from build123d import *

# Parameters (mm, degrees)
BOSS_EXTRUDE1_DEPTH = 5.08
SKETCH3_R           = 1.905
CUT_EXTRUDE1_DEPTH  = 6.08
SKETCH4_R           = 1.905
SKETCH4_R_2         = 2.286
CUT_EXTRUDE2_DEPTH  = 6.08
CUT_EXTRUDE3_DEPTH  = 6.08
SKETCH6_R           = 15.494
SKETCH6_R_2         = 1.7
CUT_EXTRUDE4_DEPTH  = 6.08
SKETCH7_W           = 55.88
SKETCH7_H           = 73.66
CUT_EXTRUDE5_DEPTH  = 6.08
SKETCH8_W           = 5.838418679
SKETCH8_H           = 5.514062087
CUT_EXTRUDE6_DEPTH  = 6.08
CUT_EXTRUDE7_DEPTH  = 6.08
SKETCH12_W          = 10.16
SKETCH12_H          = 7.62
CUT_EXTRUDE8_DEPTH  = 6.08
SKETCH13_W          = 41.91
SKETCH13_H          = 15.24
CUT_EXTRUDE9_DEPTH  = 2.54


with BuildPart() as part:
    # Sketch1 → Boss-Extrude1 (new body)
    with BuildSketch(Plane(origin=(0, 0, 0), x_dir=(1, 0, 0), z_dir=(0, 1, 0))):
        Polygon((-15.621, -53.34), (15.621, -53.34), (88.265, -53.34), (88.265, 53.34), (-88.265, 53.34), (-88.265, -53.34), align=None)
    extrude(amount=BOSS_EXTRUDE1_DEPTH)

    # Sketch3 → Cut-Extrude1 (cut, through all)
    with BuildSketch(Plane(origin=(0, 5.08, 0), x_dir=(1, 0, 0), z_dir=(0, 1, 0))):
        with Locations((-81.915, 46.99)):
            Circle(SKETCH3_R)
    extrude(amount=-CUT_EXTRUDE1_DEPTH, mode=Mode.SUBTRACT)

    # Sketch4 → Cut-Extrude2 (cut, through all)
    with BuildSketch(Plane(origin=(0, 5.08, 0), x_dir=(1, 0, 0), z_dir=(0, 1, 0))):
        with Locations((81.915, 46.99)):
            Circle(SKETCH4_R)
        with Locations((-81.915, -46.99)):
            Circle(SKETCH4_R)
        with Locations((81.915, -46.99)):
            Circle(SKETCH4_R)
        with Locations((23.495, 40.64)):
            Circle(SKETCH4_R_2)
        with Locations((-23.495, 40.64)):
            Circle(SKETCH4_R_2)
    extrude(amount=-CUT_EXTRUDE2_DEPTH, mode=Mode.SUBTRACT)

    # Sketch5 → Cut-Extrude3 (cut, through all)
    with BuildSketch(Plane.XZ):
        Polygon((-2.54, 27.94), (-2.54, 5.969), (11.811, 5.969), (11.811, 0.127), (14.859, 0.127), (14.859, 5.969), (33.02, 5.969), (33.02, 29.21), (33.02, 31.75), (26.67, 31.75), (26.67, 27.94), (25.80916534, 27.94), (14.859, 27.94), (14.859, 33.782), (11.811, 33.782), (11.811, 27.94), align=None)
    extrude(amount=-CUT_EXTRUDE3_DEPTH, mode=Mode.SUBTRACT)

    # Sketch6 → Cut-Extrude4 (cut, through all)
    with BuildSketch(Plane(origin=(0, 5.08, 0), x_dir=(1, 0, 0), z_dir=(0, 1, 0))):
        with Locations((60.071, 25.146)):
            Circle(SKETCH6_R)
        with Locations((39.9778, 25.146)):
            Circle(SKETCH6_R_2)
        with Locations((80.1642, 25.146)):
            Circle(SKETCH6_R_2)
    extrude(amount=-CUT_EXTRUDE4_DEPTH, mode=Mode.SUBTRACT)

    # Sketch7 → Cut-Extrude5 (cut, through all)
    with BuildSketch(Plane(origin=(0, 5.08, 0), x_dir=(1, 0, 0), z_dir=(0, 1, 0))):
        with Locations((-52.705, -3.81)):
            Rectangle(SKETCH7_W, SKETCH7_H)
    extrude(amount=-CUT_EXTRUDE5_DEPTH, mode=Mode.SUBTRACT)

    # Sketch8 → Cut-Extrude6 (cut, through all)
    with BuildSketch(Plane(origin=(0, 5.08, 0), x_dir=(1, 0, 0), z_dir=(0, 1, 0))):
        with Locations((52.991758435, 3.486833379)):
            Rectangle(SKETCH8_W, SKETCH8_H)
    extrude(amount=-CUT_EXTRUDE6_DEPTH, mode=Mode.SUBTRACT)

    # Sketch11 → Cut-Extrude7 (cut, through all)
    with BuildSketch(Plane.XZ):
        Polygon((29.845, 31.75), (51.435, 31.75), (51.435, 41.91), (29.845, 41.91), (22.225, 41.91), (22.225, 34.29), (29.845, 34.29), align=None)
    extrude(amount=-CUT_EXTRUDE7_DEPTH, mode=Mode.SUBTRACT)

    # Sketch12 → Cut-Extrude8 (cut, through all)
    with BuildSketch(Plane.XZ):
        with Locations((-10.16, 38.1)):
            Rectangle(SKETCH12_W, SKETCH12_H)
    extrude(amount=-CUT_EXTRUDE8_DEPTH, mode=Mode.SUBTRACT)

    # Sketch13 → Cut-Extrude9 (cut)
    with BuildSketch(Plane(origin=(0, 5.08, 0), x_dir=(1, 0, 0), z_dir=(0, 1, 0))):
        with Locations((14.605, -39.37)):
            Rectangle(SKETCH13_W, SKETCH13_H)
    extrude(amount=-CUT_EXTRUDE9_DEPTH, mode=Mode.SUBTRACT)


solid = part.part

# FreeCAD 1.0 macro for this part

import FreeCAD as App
import Part
import Sketcher
from FreeCAD import Vector
Q = App.Units.Quantity

doc = App.newDocument("Part")
params = doc.addObject("Spreadsheet::Sheet", "Params")
for row, (alias, value) in enumerate([
    ("sketch1_height", "4.2 in"),
    ("sketch1_width", "6.95 in"),
    ("pad1_length", "0.2 in"),
    ("sketch2_diameter", "0.15 in"),
    ("sketch3_diameter", "0.15 in"),
    ("sketch3_diameter2", "0.18 in"),
    ("sketch4_width", "0.12 in"),
    ("sketch4_width2", "0.25 in"),
    ("sketch4_height", "0.23 in"),
    ("sketch4_height2", "0.15 in"),
    ("sketch4_width3", "0.565 in"),
    ("sketch5_diameter", "1.22 in"),
    ("sketch6_width", "2.2 in"),
    ("sketch6_height", "2.9 in"),
    ("sketch8_width", "0.3 in"),
    ("sketch8_height", "0.4 in"),
    ("sketch8_width2", "0.85 in"),
    ("sketch9_width", "0.4 in"),
    ("sketch9_height", "0.3 in"),
    ("sketch10_height", "0.6 in"),
    ("sketch10_width", "1.65 in"),
    ("pocket9_length", "0.1 in"),
], start=1):
    params.set(f"A{row}", alias)
    params.set(f"B{row}", "=" + value)
    params.setAlias(f"B{row}", alias)

body = doc.addObject("PartDesign::Body", "Body")

sketch1 = doc.addObject("Sketcher::SketchObject", "Sketch")
body.addObject(sketch1)
sketch1.AttachmentSupport = (doc.XZ_Plane, [""])
sketch1.MapMode = "FlatFace"
sketch1.addGeometry([
    Part.LineSegment(Vector(88, 53, 0), Vector(88, -53, 0)),
    Part.LineSegment(Vector(88, -53, 0), Vector(-88, -53, 0)),
    Part.LineSegment(Vector(-88, -53, 0), Vector(-88, 53, 0)),
    Part.LineSegment(Vector(-88, 53, 0), Vector(88, 53, 0)),
], False)
sketch1.addConstraint([
    Sketcher.Constraint("Coincident", 0, 2, 1, 1),
    Sketcher.Constraint("Coincident", 1, 2, 2, 1),
    Sketcher.Constraint("Coincident", 2, 2, 3, 1),
    Sketcher.Constraint("Coincident", 3, 2, 0, 1),
    Sketcher.Constraint("Vertical", 0),
    Sketcher.Constraint("Horizontal", 1),
    Sketcher.Constraint("Vertical", 2),
    Sketcher.Constraint("Horizontal", 3),
    Sketcher.Constraint("Symmetric", 0, 2, 2, 2, -1, 1),
    Sketcher.Constraint("DistanceY", 0, 2, 0, 1, Q("4.2 in")),
    Sketcher.Constraint("DistanceX", 1, 2, 1, 1, Q("6.95 in")),
])
sketch1.setExpression("Constraints[9]", "Params.sketch1_height")
sketch1.setExpression("Constraints[10]", "Params.sketch1_width")
pad1 = doc.addObject("PartDesign::Pad", "Pad")
body.addObject(pad1)
pad1.Profile = sketch1
pad1.setExpression("Length", "Params.pad1_length")
pad1.Reversed = True

sketch2 = doc.addObject("Sketcher::SketchObject", "Sketch001")
body.addObject(sketch2)
sketch2.AttachmentSupport = (doc.XZ_Plane, [""])
sketch2.MapMode = "FlatFace"
sketch2.AttachmentOffset = App.Placement(Vector(0, 0, -0.2 * 25.4), App.Rotation())
sketch2.addGeometry(Part.Circle(Vector(-81.9, -47, 0), Vector(0, 0, 1), 1.9), False)
sketch2.addConstraint([
    Sketcher.Constraint("Diameter", 0, Q("0.15 in")),
    Sketcher.Constraint("DistanceY", 0, 3, -1, 1, Q("1.85 in")),
    Sketcher.Constraint("DistanceX", 0, 3, -1, 1, Q("3.225 in")),
])
sketch2.setExpression("Constraints[0]", "Params.sketch2_diameter")
pocket1 = doc.addObject("PartDesign::Pocket", "Pocket")
body.addObject(pocket1)
pocket1.Profile = sketch2
pocket1.Type = "ThroughAll"
pocket1.Reversed = True

sketch3 = doc.addObject("Sketcher::SketchObject", "Sketch002")
body.addObject(sketch3)
sketch3.AttachmentSupport = (doc.XZ_Plane, [""])
sketch3.MapMode = "FlatFace"
sketch3.AttachmentOffset = App.Placement(Vector(0, 0, -0.2 * 25.4), App.Rotation())
sketch3.addGeometry([
    Part.Circle(Vector(81.9, -47, 0), Vector(0, 0, 1), 1.9),
    Part.Circle(Vector(-81.9, 47, 0), Vector(0, 0, 1), 1.9),
    Part.Circle(Vector(81.9, 47, 0), Vector(0, 0, 1), 1.9),
    Part.Circle(Vector(23.5, -40.6, 0), Vector(0, 0, 1), 2.3),
    Part.Circle(Vector(-23.5, -40.6, 0), Vector(0, 0, 1), 2.3),
], False)
sketch3.addConstraint([
    Sketcher.Constraint("Equal", 0, 1),
    Sketcher.Constraint("Equal", 1, 2),
    Sketcher.Constraint("Equal", 3, 4),
    Sketcher.Constraint("Symmetric", 0, 3, 1, 3, -1, 1),
    Sketcher.Constraint("Symmetric", 1, 3, 2, 3, -2),
    Sketcher.Constraint("Symmetric", 3, 3, 4, 3, -2),
    Sketcher.Constraint("Diameter", 0, Q("0.15 in")),
    Sketcher.Constraint("Diameter", 3, Q("0.18 in")),
    Sketcher.Constraint("DistanceY", 3, 3, -1, 1, Q("1.6 in")),
    Sketcher.Constraint("DistanceY", 0, 3, 1, 3, Q("3.7 in")),
    Sketcher.Constraint("DistanceX", 3, 3, 0, 3, Q("2.3 in")),
    Sketcher.Constraint("DistanceX", 1, 3, 0, 3, Q("6.45 in")),
])
sketch3.setExpression("Constraints[6]", "Params.sketch3_diameter")
sketch3.setExpression("Constraints[7]", "Params.sketch3_diameter2")
pocket2 = doc.addObject("PartDesign::Pocket", "Pocket001")
body.addObject(pocket2)
pocket2.Profile = sketch3
pocket2.Type = "ThroughAll"
pocket2.Reversed = True

sketch4 = doc.addObject("Sketcher::SketchObject", "Sketch003")
body.addObject(sketch4)
sketch4.AttachmentSupport = (doc.XZ_Plane, [""])
sketch4.MapMode = "FlatFace"
sketch4.addGeometry([
    Part.LineSegment(Vector(-2.5, 27.9, 0), Vector(-2.5, 6, 0)),
    Part.LineSegment(Vector(-2.5, 6, 0), Vector(11.8, 6, 0)),
    Part.LineSegment(Vector(11.8, 6, 0), Vector(11.8, 0.1, 0)),
    Part.LineSegment(Vector(11.8, 0.1, 0), Vector(14.9, 0.1, 0)),
    Part.LineSegment(Vector(14.9, 0.1, 0), Vector(14.9, 6, 0)),
    Part.LineSegment(Vector(14.9, 6, 0), Vector(33, 6, 0)),
    Part.LineSegment(Vector(33, 6, 0), Vector(33, 31.8, 0)),
    Part.LineSegment(Vector(33, 31.8, 0), Vector(26.7, 31.8, 0)),
    Part.LineSegment(Vector(26.7, 31.8, 0), Vector(26.7, 27.9, 0)),
    Part.LineSegment(Vector(26.7, 27.9, 0), Vector(14.9, 27.9, 0)),
    Part.LineSegment(Vector(14.9, 27.9, 0), Vector(14.9, 33.8, 0)),
    Part.LineSegment(Vector(14.9, 33.8, 0), Vector(11.8, 33.8, 0)),
    Part.LineSegment(Vector(11.8, 33.8, 0), Vector(11.8, 27.9, 0)),
    Part.LineSegment(Vector(11.8, 27.9, 0), Vector(-2.5, 27.9, 0)),
], False)
sketch4.addConstraint([
    Sketcher.Constraint("Coincident", 0, 2, 1, 1),
    Sketcher.Constraint("Coincident", 1, 2, 2, 1),
    Sketcher.Constraint("Coincident", 2, 2, 3, 1),
    Sketcher.Constraint("Coincident", 3, 2, 4, 1),
    Sketcher.Constraint("Coincident", 4, 2, 5, 1),
    Sketcher.Constraint("Coincident", 5, 2, 6, 1),
    Sketcher.Constraint("Coincident", 6, 2, 7, 1),
    Sketcher.Constraint("Coincident", 7, 2, 8, 1),
    Sketcher.Constraint("Coincident", 8, 2, 9, 1),
    Sketcher.Constraint("Coincident", 9, 2, 10, 1),
    Sketcher.Constraint("Coincident", 10, 2, 11, 1),
    Sketcher.Constraint("Coincident", 11, 2, 12, 1),
    Sketcher.Constraint("Coincident", 12, 2, 13, 1),
    Sketcher.Constraint("Coincident", 13, 2, 0, 1),
    Sketcher.Constraint("Vertical", 0),
    Sketcher.Constraint("Horizontal", 1),
    Sketcher.Constraint("Vertical", 2),
    Sketcher.Constraint("Horizontal", 3),
    Sketcher.Constraint("Vertical", 4),
    Sketcher.Constraint("Horizontal", 5),
    Sketcher.Constraint("Vertical", 6),
    Sketcher.Constraint("Horizontal", 7),
    Sketcher.Constraint("Vertical", 8),
    Sketcher.Constraint("Horizontal", 9),
    Sketcher.Constraint("Vertical", 10),
    Sketcher.Constraint("Horizontal", 11),
    Sketcher.Constraint("Vertical", 12),
    Sketcher.Constraint("Horizontal", 13),
    Sketcher.Constraint("Horizontal", 1, 2, 4, 2),
    Sketcher.Constraint("Horizontal", 9, 2, 12, 2),
    Sketcher.Constraint("Vertical", 4, 2, 9, 2),
    Sketcher.Constraint("Vertical", 2, 2, 11, 2),
    Sketcher.Constraint("Equal", 4, 10),
    Sketcher.Constraint("DistanceX", 3, 1, 3, 2, Q("0.12 in")),
    Sketcher.Constraint("DistanceX", 7, 2, 7, 1, Q("0.25 in")),
    Sketcher.Constraint("DistanceY", 2, 2, 2, 1, Q("0.23 in")),
    Sketcher.Constraint("DistanceY", 8, 2, 8, 1, Q("0.15 in")),
    Sketcher.Constraint("DistanceX", 0, 2, -1, 1, Q("0.1 in")),
    Sketcher.Constraint("DistanceX", -1, 1, 5, 2, Q("1.3 in")),
    Sketcher.Constraint("DistanceY", -1, 1, 8, 2, Q("1.1 in")),
    Sketcher.Constraint("DistanceX", 1, 1, 1, 2, Q("0.565 in")),
    Sketcher.Constraint("DistanceY", 0, 2, 0, 1, Q("0.865 in")),
])
sketch4.setExpression("Constraints[33]", "Params.sketch4_width")
sketch4.setExpression("Constraints[34]", "Params.sketch4_width2")
sketch4.setExpression("Constraints[35]", "Params.sketch4_height")
sketch4.setExpression("Constraints[36]", "Params.sketch4_height2")
sketch4.setExpression("Constraints[40]", "Params.sketch4_width3")
pocket3 = doc.addObject("PartDesign::Pocket", "Pocket002")
body.addObject(pocket3)
pocket3.Profile = sketch4
pocket3.Type = "ThroughAll"

sketch5 = doc.addObject("Sketcher::SketchObject", "Sketch004")
body.addObject(sketch5)
sketch5.AttachmentSupport = (doc.XZ_Plane, [""])
sketch5.MapMode = "FlatFace"
sketch5.AttachmentOffset = App.Placement(Vector(0, 0, -0.2 * 25.4), App.Rotation())
sketch5.addGeometry([
    Part.Circle(Vector(60.1, -25.1, 0), Vector(0, 0, 1), 15.5),
    Part.Circle(Vector(40, -25.1, 0), Vector(0, 0, 1), 1.7),
    Part.Circle(Vector(80.2, -25.1, 0), Vector(0, 0, 1), 1.7),
], False)
sketch5.addConstraint([
    Sketcher.Constraint("Equal", 1, 2),
    Sketcher.Constraint("Horizontal", 0, 3, 1, 3),
    Sketcher.Constraint("Horizontal", 1, 3, 2, 3),
    Sketcher.Constraint("Diameter", 0, Q("1.22 in")),
    Sketcher.Constraint("Diameter", 1, 3.4),
    Sketcher.Constraint("DistanceY", 0, 3, -1, 1, Q("0.99 in")),
    Sketcher.Constraint("DistanceX", -1, 1, 0, 3, Q("2.365 in")),
    Sketcher.Constraint("DistanceX", -1, 1, 1, 3, 39.9778),
    Sketcher.Constraint("DistanceX", -1, 1, 2, 3, 80.1642),
])
sketch5.setExpression("Constraints[3]", "Params.sketch5_diameter")
pocket4 = doc.addObject("PartDesign::Pocket", "Pocket003")
body.addObject(pocket4)
pocket4.Profile = sketch5
pocket4.Type = "ThroughAll"
pocket4.Reversed = True

sketch6 = doc.addObject("Sketcher::SketchObject", "Sketch005")
body.addObject(sketch6)
sketch6.AttachmentSupport = (doc.XZ_Plane, [""])
sketch6.MapMode = "FlatFace"
sketch6.AttachmentOffset = App.Placement(Vector(0, 0, -0.2 * 25.4), App.Rotation())
sketch6.addGeometry([
    Part.LineSegment(Vector(-81, -33, 0), Vector(-81, 41, 0)),
    Part.LineSegment(Vector(-81, 41, 0), Vector(-25, 41, 0)),
    Part.LineSegment(Vector(-25, 41, 0), Vector(-25, -33, 0)),
    Part.LineSegment(Vector(-25, -33, 0), Vector(-81, -33, 0)),
], False)
sketch6.addConstraint([
    Sketcher.Constraint("Coincident", 0, 2, 1, 1),
    Sketcher.Constraint("Coincident", 1, 2, 2, 1),
    Sketcher.Constraint("Coincident", 2, 2, 3, 1),
    Sketcher.Constraint("Coincident", 3, 2, 0, 1),
    Sketcher.Constraint("Vertical", 0),
    Sketcher.Constraint("Horizontal", 1),
    Sketcher.Constraint("Vertical", 2),
    Sketcher.Constraint("Horizontal", 3),
    Sketcher.Constraint("DistanceX", 1, 1, 1, 2, Q("2.2 in")),
    Sketcher.Constraint("DistanceY", 0, 1, 0, 2, Q("2.9 in")),
    Sketcher.Constraint("DistanceY", -1, 1, 0, 2, Q("1.6 in")),
    Sketcher.Constraint("DistanceX", 0, 2, -1, 1, Q("3.175 in")),
])
sketch6.setExpression("Constraints[8]", "Params.sketch6_width")
sketch6.setExpression("Constraints[9]", "Params.sketch6_height")
pocket5 = doc.addObject("PartDesign::Pocket", "Pocket004")
body.addObject(pocket5)
pocket5.Profile = sketch6
pocket5.Type = "ThroughAll"
pocket5.Reversed = True

sketch7 = doc.addObject("Sketcher::SketchObject", "Sketch006")
body.addObject(sketch7)
sketch7.AttachmentSupport = (doc.XZ_Plane, [""])
sketch7.MapMode = "FlatFace"
sketch7.AttachmentOffset = App.Placement(Vector(0, 0, -0.2 * 25.4), App.Rotation())
sketch7.addGeometry([
    Part.LineSegment(Vector(50, -6, 0), Vector(50, -1, 0)),
    Part.LineSegment(Vector(50, -1, 0), Vector(56, -1, 0)),
    Part.LineSegment(Vector(56, -1, 0), Vector(56, -6, 0)),
    Part.LineSegment(Vector(56, -6, 0), Vector(50, -6, 0)),
], False)
sketch7.addConstraint([
    Sketcher.Constraint("Coincident", 0, 2, 1, 1),
    Sketcher.Constraint("Coincident", 1, 2, 2, 1),
    Sketcher.Constraint("Coincident", 2, 2, 3, 1),
    Sketcher.Constraint("Coincident", 3, 2, 0, 1),
    Sketcher.Constraint("Vertical", 0),
    Sketcher.Constraint("Horizontal", 1),
    Sketcher.Constraint("Vertical", 2),
    Sketcher.Constraint("Horizontal", 3),
    Sketcher.Constraint("DistanceX", 1, 1, 1, 2, 5.838419),
    Sketcher.Constraint("DistanceY", 0, 1, 0, 2, 5.514062),
    Sketcher.Constraint("DistanceX", -1, 1, 0, 2, 50.072549),
    Sketcher.Constraint("DistanceY", 0, 2, -1, 1, 0.729802),
])
pocket6 = doc.addObject("PartDesign::Pocket", "Pocket005")
body.addObject(pocket6)
pocket6.Profile = sketch7
pocket6.Type = "ThroughAll"
pocket6.Reversed = True

sketch8 = doc.addObject("Sketcher::SketchObject", "Sketch007")
body.addObject(sketch8)
sketch8.AttachmentSupport = (doc.XZ_Plane, [""])
sketch8.MapMode = "FlatFace"
sketch8.addGeometry([
    Part.LineSegment(Vector(29.8, 31.8, 0), Vector(51.4, 31.8, 0)),
    Part.LineSegment(Vector(51.4, 31.8, 0), Vector(51.4, 41.9, 0)),
    Part.LineSegment(Vector(51.4, 41.9, 0), Vector(22.2, 41.9, 0)),
    Part.LineSegment(Vector(22.2, 41.9, 0), Vector(22.2, 34.3, 0)),
    Part.LineSegment(Vector(22.2, 34.3, 0), Vector(29.8, 34.3, 0)),
    Part.LineSegment(Vector(29.8, 34.3, 0), Vector(29.8, 31.8, 0)),
], False)
sketch8.addConstraint([
    Sketcher.Constraint("Coincident", 0, 2, 1, 1),
    Sketcher.Constraint("Coincident", 1, 2, 2, 1),
    Sketcher.Constraint("Coincident", 2, 2, 3, 1),
    Sketcher.Constraint("Coincident", 3, 2, 4, 1),
    Sketcher.Constraint("Coincident", 4, 2, 5, 1),
    Sketcher.Constraint("Coincident", 5, 2, 0, 1),
    Sketcher.Constraint("Horizontal", 0),
    Sketcher.Constraint("Vertical", 1),
    Sketcher.Constraint("Horizontal", 2),
    Sketcher.Constraint("Vertical", 3),
    Sketcher.Constraint("Horizontal", 4),
    Sketcher.Constraint("Vertical", 5),
    Sketcher.Constraint("Equal", 4, 3),
    Sketcher.Constraint("DistanceX", 4, 1, 4, 2, Q("0.3 in")),
    Sketcher.Constraint("DistanceY", 1, 1, 1, 2, Q("0.4 in")),
    Sketcher.Constraint("DistanceX", 0, 1, 0, 2, Q("0.85 in")),
    Sketcher.Constraint("DistanceY", -1, 1, 0, 2, Q("1.25 in")),
    Sketcher.Constraint("DistanceX", -1, 1, 0, 2, Q("2.025 in")),
])
sketch8.setExpression("Constraints[13]", "Params.sketch8_width")
sketch8.setExpression("Constraints[14]", "Params.sketch8_height")
sketch8.setExpression("Constraints[15]", "Params.sketch8_width2")
pocket7 = doc.addObject("PartDesign::Pocket", "Pocket006")
body.addObject(pocket7)
pocket7.Profile = sketch8
pocket7.Type = "ThroughAll"

sketch9 = doc.addObject("Sketcher::SketchObject", "Sketch008")
body.addObject(sketch9)
sketch9.AttachmentSupport = (doc.XZ_Plane, [""])
sketch9.MapMode = "FlatFace"
sketch9.addGeometry([
    Part.LineSegment(Vector(-15, 42, 0), Vector(-15, 34, 0)),
    Part.LineSegment(Vector(-15, 34, 0), Vector(-5, 34, 0)),
    Part.LineSegment(Vector(-5, 34, 0), Vector(-5, 42, 0)),
    Part.LineSegment(Vector(-5, 42, 0), Vector(-15, 42, 0)),
], False)
sketch9.addConstraint([
    Sketcher.Constraint("Coincident", 0, 2, 1, 1),
    Sketcher.Constraint("Coincident", 1, 2, 2, 1),
    Sketcher.Constraint("Coincident", 2, 2, 3, 1),
    Sketcher.Constraint("Coincident", 3, 2, 0, 1),
    Sketcher.Constraint("Vertical", 0),
    Sketcher.Constraint("Horizontal", 1),
    Sketcher.Constraint("Vertical", 2),
    Sketcher.Constraint("Horizontal", 3),
    Sketcher.Constraint("DistanceX", 1, 1, 1, 2, Q("0.4 in")),
    Sketcher.Constraint("DistanceY", 0, 2, 0, 1, Q("0.3 in")),
    Sketcher.Constraint("DistanceX", 0, 2, -1, 1, Q("0.6 in")),
    Sketcher.Constraint("DistanceY", -1, 1, 0, 2, Q("1.35 in")),
])
sketch9.setExpression("Constraints[8]", "Params.sketch9_width")
sketch9.setExpression("Constraints[9]", "Params.sketch9_height")
pocket8 = doc.addObject("PartDesign::Pocket", "Pocket007")
body.addObject(pocket8)
pocket8.Profile = sketch9
pocket8.Type = "ThroughAll"

sketch10 = doc.addObject("Sketcher::SketchObject", "Sketch009")
body.addObject(sketch10)
sketch10.AttachmentSupport = (doc.XZ_Plane, [""])
sketch10.MapMode = "FlatFace"
sketch10.AttachmentOffset = App.Placement(Vector(0, 0, -0.2 * 25.4), App.Rotation())
sketch10.addGeometry([
    Part.LineSegment(Vector(-6, 32, 0), Vector(-6, 47, 0)),
    Part.LineSegment(Vector(-6, 47, 0), Vector(36, 47, 0)),
    Part.LineSegment(Vector(36, 47, 0), Vector(36, 32, 0)),
    Part.LineSegment(Vector(36, 32, 0), Vector(-6, 32, 0)),
], False)
sketch10.addConstraint([
    Sketcher.Constraint("Coincident", 0, 2, 1, 1),
    Sketcher.Constraint("Coincident", 1, 2, 2, 1),
    Sketcher.Constraint("Coincident", 2, 2, 3, 1),
    Sketcher.Constraint("Coincident", 3, 2, 0, 1),
    Sketcher.Constraint("Vertical", 0),
    Sketcher.Constraint("Horizontal", 1),
    Sketcher.Constraint("Vertical", 2),
    Sketcher.Constraint("Horizontal", 3),
    Sketcher.Constraint("DistanceY", 0, 1, 0, 2, Q("0.6 in")),
    Sketcher.Constraint("DistanceX", 1, 1, 1, 2, Q("1.65 in")),
    Sketcher.Constraint("DistanceX", -1, 1, 1, 2, Q("1.4 in")),
    Sketcher.Constraint("DistanceY", -1, 1, 0, 2, Q("1.85 in")),
])
sketch10.setExpression("Constraints[8]", "Params.sketch10_height")
sketch10.setExpression("Constraints[9]", "Params.sketch10_width")
pocket9 = doc.addObject("PartDesign::Pocket", "Pocket008")
body.addObject(pocket9)
pocket9.Profile = sketch10
pocket9.setExpression("Length", "Params.pocket9_length")
pocket9.Reversed = True

doc.recompute()
